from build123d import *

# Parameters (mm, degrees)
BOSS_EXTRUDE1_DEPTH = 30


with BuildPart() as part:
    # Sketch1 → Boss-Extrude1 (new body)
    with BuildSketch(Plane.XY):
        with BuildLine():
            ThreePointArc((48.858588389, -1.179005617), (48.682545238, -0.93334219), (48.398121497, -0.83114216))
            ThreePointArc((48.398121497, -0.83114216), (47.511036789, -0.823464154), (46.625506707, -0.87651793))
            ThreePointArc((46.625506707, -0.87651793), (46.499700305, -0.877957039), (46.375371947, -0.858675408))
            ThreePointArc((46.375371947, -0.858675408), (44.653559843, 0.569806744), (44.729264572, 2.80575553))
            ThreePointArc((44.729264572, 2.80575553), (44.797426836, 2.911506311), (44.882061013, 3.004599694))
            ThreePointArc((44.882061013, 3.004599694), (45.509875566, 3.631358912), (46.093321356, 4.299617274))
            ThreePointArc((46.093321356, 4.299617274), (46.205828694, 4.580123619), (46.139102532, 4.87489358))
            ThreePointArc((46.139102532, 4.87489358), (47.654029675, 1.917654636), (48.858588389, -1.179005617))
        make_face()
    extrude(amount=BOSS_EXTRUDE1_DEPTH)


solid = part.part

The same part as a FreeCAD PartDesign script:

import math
import FreeCAD as App
import Part
import Sketcher

V = App.Vector
Q = App.Units.Quantity

doc = App.newDocument("Part")
body = doc.addObject("PartDesign::Body", "Body")

# Sketch on XY plane
sketch1 = body.newObject("Sketcher::SketchObject", "Sketch")
sketch1.AttachmentSupport = (doc.getObject("XY_Plane"), [""])
sketch1.MapMode = "FlatFace"
sketch1.addGeometry([
    Part.ArcOfCircle(Part.Circle(V(48.37632, -1.338692, 0), V(0, 0, 1), 0.508018), math.radians(18.320515), math.radians(87.540446)),  # 0
    Part.ArcOfCircle(Part.Circle(V(18.055317, -11.378451, 0), V(0, 0, 1), 32.447962), math.radians(18.320515), math.radians(30.059888)),  # 1
    Part.ArcOfCircle(Part.Circle(V(45.699412, 4.620425, 0), V(0, 0, 1), 0.508018), math.radians(-39.160043), math.radians(30.059888)),  # 2
    Part.ArcOfCircle(Part.Circle(V(36.04917, 12.480179, 0), V(0, 0, 1), 12.954017), math.radians(-47.010447), math.radians(-39.161445)),  # 3
    Part.ArcOfCircle(Part.Circle(V(45.401642, 2.447213, 0), V(0, 0, 1), 0.762), math.radians(132.989548), math.radians(151.93144)),  # 4
    Part.ArcOfCircle(Part.Circle(V(46.970523, 1.610615, 0), V(0, 0, 1), 2.54), math.radians(151.93144), math.radians(256.448963)),  # 5
    Part.ArcOfCircle(Part.Circle(V(46.553917, -0.117888, 0), V(0, 0, 1), 0.762), math.radians(-103.551037), math.radians(-84.609145)),  # 6
    Part.ArcOfCircle(Part.Circle(V(47.842528, -13.773239, 0), V(0, 0, 1), 12.954017), math.radians(87.541848), math.radians(95.39085)),  # 7
], False)
sketch1.addConstraint([
    Sketcher.Constraint("Tangent", 0, 1, 1, 1),
    Sketcher.Constraint("Tangent", 1, 2, 2, 2),
    Sketcher.Constraint("Coincident", 2, 1, 3, 2),
    Sketcher.Constraint("Tangent", 3, 1, 4, 1),
    Sketcher.Constraint("Tangent", 4, 2, 5, 1),
    Sketcher.Constraint("Tangent", 5, 2, 6, 1),
    Sketcher.Constraint("Tangent", 6, 2, 7, 2),
    Sketcher.Constraint("Coincident", 7, 1, 0, 2),
    Sketcher.Constraint("Equal", 0, 2),
    Sketcher.Constraint("Equal", 4, 6),
    Sketcher.Constraint("Equal", 3, 7),
    Sketcher.Constraint("Radius", 5, Q("0.1 in")),
    Sketcher.Constraint("Radius", 4, Q("0.03 in")),
    Sketcher.Constraint("Radius", 1, 32.447962),
    Sketcher.Constraint("DistanceX", -1, 1, 1, 2, Q("1.8165001 in")),
    Sketcher.Constraint("Radius", 0, 0.508018),
    Sketcher.Constraint("Radius", 3, 12.954017),
    Sketcher.Constraint("DistanceY", -1, 1, 3, 1, 3.0046),
    Sketcher.Constraint("DistanceY", 5, 3, 4, 3, 0.836598),
    Sketcher.Constraint("DistanceY", 6, 3, 4, 3, 2.565102),
    Sketcher.Constraint("DistanceX", 2, 1, 5, 3, 0.877202),
    Sketcher.Constraint("DistanceX", 0, 3, 7, 1, 0.021801),
    Sketcher.Constraint("DistanceX", -1, 1, 0, 3, 48.37632),
    Sketcher.Constraint("DistanceY", 1, 3, -1, 1, 11.378451),
    Sketcher.Constraint("DistanceX", -1, 1, 3, 3, 36.04917),
    Sketcher.Constraint("DistanceY", -1, 1, 3, 3, 12.480179),
])
pad1 = body.newObject("PartDesign::Pad", "Pad")
pad1.Profile = sketch1
pad1.Length = 30

doc.recompute()
